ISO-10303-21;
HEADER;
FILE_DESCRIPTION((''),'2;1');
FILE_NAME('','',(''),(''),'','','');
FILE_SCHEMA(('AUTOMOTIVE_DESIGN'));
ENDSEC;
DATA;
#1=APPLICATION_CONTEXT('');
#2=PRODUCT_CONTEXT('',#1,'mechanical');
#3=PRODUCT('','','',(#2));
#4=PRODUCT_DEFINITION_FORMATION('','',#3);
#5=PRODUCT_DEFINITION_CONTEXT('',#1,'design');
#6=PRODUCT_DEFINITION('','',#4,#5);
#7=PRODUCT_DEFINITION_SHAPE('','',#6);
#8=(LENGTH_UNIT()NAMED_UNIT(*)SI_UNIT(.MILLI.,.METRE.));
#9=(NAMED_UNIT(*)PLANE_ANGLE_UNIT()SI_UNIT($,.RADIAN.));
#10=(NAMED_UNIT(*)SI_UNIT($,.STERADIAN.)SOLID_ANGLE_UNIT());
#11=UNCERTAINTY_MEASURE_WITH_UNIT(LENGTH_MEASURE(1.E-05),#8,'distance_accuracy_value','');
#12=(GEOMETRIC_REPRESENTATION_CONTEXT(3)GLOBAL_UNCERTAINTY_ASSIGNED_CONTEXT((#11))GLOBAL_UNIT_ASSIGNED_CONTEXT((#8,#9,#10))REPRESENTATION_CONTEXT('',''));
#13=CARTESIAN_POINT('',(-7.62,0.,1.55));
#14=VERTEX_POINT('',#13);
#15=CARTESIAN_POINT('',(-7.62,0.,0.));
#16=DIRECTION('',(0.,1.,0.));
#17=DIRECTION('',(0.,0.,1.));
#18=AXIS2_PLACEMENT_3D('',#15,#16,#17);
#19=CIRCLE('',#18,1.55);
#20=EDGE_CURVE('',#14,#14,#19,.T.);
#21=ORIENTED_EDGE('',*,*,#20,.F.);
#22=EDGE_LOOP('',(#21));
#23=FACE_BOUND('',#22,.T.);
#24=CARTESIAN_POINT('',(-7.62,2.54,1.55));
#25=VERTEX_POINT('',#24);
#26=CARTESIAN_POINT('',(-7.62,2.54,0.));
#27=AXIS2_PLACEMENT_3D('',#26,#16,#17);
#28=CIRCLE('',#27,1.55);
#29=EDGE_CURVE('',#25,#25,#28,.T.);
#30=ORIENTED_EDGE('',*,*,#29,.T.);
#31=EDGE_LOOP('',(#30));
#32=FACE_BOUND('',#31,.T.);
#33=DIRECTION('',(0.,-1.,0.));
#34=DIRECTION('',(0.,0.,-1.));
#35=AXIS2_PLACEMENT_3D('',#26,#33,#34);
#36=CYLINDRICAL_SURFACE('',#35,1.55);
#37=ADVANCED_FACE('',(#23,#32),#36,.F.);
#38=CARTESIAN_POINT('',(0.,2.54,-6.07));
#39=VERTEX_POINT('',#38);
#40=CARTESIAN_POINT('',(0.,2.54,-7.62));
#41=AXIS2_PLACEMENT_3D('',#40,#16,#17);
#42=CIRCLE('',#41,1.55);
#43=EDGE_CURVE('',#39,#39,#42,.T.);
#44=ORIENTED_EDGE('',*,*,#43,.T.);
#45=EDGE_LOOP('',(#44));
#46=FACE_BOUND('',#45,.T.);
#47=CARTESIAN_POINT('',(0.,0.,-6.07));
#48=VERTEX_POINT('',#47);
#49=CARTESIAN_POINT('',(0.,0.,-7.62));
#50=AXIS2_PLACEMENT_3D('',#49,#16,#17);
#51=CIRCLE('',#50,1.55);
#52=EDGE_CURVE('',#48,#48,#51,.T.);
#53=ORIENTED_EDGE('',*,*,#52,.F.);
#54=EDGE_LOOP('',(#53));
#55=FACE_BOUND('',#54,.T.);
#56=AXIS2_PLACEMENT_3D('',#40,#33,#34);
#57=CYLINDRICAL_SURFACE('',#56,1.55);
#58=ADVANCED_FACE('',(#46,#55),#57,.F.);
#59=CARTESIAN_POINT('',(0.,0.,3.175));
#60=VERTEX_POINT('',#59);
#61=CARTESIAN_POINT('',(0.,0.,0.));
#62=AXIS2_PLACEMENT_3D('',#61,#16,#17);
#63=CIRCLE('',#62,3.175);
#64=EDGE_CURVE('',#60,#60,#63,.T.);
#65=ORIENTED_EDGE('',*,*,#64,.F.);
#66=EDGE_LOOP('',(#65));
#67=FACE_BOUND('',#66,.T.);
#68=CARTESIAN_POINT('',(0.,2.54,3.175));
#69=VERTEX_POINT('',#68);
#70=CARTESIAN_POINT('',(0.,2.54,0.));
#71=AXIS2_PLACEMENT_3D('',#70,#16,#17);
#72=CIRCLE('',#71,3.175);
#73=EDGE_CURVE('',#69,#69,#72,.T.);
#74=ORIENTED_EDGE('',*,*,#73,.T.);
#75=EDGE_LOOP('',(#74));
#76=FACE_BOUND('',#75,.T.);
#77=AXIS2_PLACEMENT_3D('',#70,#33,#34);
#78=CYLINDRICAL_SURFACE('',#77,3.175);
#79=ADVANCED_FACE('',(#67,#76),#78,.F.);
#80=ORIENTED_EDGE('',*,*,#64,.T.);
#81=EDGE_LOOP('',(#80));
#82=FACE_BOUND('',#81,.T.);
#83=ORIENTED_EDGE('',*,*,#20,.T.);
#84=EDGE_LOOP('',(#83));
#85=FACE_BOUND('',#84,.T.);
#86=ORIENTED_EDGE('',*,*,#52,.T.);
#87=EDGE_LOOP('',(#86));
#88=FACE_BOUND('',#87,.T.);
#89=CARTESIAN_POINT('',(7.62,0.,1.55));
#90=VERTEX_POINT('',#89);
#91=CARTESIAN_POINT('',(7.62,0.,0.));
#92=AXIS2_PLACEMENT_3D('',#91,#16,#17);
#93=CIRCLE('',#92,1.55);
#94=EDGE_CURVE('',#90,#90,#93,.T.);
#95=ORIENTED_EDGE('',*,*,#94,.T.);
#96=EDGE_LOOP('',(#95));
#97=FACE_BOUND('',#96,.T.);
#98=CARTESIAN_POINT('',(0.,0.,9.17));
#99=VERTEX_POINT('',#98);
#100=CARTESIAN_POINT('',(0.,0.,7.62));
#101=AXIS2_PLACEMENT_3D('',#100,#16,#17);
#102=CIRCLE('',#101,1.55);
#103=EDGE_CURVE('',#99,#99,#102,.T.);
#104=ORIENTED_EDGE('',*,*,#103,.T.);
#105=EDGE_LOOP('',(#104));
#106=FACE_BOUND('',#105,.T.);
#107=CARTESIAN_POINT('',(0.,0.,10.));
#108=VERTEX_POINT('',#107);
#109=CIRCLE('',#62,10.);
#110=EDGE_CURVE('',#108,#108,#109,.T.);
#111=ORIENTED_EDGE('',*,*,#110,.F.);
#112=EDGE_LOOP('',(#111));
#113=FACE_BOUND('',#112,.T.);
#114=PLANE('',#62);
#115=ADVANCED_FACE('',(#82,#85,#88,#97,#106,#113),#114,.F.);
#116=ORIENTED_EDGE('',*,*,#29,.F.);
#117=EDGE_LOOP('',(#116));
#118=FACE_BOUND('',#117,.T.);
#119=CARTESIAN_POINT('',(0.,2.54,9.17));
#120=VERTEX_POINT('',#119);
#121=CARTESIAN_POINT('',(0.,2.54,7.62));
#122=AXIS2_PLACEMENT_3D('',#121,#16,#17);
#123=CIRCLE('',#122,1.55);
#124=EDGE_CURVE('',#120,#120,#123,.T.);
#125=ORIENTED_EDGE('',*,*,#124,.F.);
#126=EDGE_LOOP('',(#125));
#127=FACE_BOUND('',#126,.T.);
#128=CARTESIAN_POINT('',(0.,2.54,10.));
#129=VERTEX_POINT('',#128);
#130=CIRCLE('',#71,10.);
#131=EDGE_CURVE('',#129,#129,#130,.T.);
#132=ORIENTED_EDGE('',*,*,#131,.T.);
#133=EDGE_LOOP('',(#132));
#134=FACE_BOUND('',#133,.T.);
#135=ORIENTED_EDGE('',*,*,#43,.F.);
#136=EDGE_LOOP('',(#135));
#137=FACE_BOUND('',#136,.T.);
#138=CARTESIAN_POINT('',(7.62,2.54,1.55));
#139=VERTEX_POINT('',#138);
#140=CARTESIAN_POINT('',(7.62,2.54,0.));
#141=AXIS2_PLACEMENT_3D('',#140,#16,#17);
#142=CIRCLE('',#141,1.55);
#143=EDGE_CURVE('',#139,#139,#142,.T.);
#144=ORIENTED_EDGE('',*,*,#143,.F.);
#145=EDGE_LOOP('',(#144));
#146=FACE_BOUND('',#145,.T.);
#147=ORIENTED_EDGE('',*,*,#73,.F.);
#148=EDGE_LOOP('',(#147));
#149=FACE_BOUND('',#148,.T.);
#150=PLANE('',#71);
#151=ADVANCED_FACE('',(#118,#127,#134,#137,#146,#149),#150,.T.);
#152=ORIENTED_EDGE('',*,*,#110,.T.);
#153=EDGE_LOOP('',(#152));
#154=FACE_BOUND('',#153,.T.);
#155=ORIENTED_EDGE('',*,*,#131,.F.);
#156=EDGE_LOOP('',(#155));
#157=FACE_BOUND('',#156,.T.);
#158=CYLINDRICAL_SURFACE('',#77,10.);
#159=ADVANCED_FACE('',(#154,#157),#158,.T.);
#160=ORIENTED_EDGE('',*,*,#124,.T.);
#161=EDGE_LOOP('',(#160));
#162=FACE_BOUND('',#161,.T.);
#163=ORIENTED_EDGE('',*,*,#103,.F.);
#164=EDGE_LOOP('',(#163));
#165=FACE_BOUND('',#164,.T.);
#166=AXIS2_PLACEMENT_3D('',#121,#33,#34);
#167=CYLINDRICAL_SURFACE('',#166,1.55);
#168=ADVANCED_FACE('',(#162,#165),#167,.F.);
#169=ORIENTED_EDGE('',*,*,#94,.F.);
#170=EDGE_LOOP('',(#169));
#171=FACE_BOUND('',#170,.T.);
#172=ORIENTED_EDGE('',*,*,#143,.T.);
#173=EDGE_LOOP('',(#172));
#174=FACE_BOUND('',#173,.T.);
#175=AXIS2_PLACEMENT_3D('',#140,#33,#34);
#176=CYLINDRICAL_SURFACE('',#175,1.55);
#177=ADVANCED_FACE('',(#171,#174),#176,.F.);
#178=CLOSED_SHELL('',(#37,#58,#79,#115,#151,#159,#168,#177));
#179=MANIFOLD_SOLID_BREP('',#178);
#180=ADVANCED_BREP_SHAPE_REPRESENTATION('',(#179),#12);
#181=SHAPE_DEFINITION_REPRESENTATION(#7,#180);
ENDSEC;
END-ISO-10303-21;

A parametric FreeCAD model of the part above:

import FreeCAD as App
import Part
import Sketcher

doc = App.newDocument("Part")
body = doc.addObject("PartDesign::Body", "Body")

# Sketch on XZ plane
sketch1 = body.newObject("Sketcher::SketchObject", "Sketch")
sketch1.AttachmentSupport = (doc.getObject("XZ_Plane"), [""])
sketch1.MapMode = "FlatFace"
sketch1.addGeometry([
    Part.Circle(App.Vector(0, 0, 0), App.Vector(0, 0, 1), 10),  # 0
    Part.Circle(App.Vector(0, -7.62, 0), App.Vector(0, 0, 1), 1.55),  # 1
    Part.Circle(App.Vector(-7.62, 0, 0), App.Vector(0, 0, 1), 1.55),  # 2
    Part.Circle(App.Vector(0, 0, 0), App.Vector(0, 0, 1), 3.175),  # 3
    Part.Circle(App.Vector(7.62, 0, 0), App.Vector(0, 0, 1), 1.55),  # 4
    Part.Circle(App.Vector(0, 7.62, 0), App.Vector(0, 0, 1), 1.55),  # 5
], False)
sketch1.addConstraint([
    Sketcher.Constraint("Coincident", 0, 3, -1, 1),
    Sketcher.Constraint("Coincident", 3, 3, -1, 1),
    Sketcher.Constraint("Equal", 1, 2),
    Sketcher.Constraint("Equal", 2, 4),
    Sketcher.Constraint("Equal", 4, 5),
    Sketcher.Constraint("Symmetric", 2, 3, 4, 3, -1, 1),
    Sketcher.Constraint("Symmetric", 1, 3, 5, 3, -1, 1),
    Sketcher.Constraint("PointOnObject", 1, 3, -2),
    Sketcher.Constraint("PointOnObject", 2, 3, -1),
    Sketcher.Constraint("Diameter", 0, 20.0),
    Sketcher.Constraint("Diameter", 1, 3.1),
    Sketcher.Constraint("Diameter", 3, 6.35),
    Sketcher.Constraint("DistanceY", 1, 3, -1, 1, 7.62),
    Sketcher.Constraint("DistanceX", 2, 3, -1, 1, 7.62),
])
pad1 = body.newObject("PartDesign::Pad", "Pad")
pad1.Profile = sketch1
pad1.Length = 2.54
pad1.Reversed = True

doc.recompute()
